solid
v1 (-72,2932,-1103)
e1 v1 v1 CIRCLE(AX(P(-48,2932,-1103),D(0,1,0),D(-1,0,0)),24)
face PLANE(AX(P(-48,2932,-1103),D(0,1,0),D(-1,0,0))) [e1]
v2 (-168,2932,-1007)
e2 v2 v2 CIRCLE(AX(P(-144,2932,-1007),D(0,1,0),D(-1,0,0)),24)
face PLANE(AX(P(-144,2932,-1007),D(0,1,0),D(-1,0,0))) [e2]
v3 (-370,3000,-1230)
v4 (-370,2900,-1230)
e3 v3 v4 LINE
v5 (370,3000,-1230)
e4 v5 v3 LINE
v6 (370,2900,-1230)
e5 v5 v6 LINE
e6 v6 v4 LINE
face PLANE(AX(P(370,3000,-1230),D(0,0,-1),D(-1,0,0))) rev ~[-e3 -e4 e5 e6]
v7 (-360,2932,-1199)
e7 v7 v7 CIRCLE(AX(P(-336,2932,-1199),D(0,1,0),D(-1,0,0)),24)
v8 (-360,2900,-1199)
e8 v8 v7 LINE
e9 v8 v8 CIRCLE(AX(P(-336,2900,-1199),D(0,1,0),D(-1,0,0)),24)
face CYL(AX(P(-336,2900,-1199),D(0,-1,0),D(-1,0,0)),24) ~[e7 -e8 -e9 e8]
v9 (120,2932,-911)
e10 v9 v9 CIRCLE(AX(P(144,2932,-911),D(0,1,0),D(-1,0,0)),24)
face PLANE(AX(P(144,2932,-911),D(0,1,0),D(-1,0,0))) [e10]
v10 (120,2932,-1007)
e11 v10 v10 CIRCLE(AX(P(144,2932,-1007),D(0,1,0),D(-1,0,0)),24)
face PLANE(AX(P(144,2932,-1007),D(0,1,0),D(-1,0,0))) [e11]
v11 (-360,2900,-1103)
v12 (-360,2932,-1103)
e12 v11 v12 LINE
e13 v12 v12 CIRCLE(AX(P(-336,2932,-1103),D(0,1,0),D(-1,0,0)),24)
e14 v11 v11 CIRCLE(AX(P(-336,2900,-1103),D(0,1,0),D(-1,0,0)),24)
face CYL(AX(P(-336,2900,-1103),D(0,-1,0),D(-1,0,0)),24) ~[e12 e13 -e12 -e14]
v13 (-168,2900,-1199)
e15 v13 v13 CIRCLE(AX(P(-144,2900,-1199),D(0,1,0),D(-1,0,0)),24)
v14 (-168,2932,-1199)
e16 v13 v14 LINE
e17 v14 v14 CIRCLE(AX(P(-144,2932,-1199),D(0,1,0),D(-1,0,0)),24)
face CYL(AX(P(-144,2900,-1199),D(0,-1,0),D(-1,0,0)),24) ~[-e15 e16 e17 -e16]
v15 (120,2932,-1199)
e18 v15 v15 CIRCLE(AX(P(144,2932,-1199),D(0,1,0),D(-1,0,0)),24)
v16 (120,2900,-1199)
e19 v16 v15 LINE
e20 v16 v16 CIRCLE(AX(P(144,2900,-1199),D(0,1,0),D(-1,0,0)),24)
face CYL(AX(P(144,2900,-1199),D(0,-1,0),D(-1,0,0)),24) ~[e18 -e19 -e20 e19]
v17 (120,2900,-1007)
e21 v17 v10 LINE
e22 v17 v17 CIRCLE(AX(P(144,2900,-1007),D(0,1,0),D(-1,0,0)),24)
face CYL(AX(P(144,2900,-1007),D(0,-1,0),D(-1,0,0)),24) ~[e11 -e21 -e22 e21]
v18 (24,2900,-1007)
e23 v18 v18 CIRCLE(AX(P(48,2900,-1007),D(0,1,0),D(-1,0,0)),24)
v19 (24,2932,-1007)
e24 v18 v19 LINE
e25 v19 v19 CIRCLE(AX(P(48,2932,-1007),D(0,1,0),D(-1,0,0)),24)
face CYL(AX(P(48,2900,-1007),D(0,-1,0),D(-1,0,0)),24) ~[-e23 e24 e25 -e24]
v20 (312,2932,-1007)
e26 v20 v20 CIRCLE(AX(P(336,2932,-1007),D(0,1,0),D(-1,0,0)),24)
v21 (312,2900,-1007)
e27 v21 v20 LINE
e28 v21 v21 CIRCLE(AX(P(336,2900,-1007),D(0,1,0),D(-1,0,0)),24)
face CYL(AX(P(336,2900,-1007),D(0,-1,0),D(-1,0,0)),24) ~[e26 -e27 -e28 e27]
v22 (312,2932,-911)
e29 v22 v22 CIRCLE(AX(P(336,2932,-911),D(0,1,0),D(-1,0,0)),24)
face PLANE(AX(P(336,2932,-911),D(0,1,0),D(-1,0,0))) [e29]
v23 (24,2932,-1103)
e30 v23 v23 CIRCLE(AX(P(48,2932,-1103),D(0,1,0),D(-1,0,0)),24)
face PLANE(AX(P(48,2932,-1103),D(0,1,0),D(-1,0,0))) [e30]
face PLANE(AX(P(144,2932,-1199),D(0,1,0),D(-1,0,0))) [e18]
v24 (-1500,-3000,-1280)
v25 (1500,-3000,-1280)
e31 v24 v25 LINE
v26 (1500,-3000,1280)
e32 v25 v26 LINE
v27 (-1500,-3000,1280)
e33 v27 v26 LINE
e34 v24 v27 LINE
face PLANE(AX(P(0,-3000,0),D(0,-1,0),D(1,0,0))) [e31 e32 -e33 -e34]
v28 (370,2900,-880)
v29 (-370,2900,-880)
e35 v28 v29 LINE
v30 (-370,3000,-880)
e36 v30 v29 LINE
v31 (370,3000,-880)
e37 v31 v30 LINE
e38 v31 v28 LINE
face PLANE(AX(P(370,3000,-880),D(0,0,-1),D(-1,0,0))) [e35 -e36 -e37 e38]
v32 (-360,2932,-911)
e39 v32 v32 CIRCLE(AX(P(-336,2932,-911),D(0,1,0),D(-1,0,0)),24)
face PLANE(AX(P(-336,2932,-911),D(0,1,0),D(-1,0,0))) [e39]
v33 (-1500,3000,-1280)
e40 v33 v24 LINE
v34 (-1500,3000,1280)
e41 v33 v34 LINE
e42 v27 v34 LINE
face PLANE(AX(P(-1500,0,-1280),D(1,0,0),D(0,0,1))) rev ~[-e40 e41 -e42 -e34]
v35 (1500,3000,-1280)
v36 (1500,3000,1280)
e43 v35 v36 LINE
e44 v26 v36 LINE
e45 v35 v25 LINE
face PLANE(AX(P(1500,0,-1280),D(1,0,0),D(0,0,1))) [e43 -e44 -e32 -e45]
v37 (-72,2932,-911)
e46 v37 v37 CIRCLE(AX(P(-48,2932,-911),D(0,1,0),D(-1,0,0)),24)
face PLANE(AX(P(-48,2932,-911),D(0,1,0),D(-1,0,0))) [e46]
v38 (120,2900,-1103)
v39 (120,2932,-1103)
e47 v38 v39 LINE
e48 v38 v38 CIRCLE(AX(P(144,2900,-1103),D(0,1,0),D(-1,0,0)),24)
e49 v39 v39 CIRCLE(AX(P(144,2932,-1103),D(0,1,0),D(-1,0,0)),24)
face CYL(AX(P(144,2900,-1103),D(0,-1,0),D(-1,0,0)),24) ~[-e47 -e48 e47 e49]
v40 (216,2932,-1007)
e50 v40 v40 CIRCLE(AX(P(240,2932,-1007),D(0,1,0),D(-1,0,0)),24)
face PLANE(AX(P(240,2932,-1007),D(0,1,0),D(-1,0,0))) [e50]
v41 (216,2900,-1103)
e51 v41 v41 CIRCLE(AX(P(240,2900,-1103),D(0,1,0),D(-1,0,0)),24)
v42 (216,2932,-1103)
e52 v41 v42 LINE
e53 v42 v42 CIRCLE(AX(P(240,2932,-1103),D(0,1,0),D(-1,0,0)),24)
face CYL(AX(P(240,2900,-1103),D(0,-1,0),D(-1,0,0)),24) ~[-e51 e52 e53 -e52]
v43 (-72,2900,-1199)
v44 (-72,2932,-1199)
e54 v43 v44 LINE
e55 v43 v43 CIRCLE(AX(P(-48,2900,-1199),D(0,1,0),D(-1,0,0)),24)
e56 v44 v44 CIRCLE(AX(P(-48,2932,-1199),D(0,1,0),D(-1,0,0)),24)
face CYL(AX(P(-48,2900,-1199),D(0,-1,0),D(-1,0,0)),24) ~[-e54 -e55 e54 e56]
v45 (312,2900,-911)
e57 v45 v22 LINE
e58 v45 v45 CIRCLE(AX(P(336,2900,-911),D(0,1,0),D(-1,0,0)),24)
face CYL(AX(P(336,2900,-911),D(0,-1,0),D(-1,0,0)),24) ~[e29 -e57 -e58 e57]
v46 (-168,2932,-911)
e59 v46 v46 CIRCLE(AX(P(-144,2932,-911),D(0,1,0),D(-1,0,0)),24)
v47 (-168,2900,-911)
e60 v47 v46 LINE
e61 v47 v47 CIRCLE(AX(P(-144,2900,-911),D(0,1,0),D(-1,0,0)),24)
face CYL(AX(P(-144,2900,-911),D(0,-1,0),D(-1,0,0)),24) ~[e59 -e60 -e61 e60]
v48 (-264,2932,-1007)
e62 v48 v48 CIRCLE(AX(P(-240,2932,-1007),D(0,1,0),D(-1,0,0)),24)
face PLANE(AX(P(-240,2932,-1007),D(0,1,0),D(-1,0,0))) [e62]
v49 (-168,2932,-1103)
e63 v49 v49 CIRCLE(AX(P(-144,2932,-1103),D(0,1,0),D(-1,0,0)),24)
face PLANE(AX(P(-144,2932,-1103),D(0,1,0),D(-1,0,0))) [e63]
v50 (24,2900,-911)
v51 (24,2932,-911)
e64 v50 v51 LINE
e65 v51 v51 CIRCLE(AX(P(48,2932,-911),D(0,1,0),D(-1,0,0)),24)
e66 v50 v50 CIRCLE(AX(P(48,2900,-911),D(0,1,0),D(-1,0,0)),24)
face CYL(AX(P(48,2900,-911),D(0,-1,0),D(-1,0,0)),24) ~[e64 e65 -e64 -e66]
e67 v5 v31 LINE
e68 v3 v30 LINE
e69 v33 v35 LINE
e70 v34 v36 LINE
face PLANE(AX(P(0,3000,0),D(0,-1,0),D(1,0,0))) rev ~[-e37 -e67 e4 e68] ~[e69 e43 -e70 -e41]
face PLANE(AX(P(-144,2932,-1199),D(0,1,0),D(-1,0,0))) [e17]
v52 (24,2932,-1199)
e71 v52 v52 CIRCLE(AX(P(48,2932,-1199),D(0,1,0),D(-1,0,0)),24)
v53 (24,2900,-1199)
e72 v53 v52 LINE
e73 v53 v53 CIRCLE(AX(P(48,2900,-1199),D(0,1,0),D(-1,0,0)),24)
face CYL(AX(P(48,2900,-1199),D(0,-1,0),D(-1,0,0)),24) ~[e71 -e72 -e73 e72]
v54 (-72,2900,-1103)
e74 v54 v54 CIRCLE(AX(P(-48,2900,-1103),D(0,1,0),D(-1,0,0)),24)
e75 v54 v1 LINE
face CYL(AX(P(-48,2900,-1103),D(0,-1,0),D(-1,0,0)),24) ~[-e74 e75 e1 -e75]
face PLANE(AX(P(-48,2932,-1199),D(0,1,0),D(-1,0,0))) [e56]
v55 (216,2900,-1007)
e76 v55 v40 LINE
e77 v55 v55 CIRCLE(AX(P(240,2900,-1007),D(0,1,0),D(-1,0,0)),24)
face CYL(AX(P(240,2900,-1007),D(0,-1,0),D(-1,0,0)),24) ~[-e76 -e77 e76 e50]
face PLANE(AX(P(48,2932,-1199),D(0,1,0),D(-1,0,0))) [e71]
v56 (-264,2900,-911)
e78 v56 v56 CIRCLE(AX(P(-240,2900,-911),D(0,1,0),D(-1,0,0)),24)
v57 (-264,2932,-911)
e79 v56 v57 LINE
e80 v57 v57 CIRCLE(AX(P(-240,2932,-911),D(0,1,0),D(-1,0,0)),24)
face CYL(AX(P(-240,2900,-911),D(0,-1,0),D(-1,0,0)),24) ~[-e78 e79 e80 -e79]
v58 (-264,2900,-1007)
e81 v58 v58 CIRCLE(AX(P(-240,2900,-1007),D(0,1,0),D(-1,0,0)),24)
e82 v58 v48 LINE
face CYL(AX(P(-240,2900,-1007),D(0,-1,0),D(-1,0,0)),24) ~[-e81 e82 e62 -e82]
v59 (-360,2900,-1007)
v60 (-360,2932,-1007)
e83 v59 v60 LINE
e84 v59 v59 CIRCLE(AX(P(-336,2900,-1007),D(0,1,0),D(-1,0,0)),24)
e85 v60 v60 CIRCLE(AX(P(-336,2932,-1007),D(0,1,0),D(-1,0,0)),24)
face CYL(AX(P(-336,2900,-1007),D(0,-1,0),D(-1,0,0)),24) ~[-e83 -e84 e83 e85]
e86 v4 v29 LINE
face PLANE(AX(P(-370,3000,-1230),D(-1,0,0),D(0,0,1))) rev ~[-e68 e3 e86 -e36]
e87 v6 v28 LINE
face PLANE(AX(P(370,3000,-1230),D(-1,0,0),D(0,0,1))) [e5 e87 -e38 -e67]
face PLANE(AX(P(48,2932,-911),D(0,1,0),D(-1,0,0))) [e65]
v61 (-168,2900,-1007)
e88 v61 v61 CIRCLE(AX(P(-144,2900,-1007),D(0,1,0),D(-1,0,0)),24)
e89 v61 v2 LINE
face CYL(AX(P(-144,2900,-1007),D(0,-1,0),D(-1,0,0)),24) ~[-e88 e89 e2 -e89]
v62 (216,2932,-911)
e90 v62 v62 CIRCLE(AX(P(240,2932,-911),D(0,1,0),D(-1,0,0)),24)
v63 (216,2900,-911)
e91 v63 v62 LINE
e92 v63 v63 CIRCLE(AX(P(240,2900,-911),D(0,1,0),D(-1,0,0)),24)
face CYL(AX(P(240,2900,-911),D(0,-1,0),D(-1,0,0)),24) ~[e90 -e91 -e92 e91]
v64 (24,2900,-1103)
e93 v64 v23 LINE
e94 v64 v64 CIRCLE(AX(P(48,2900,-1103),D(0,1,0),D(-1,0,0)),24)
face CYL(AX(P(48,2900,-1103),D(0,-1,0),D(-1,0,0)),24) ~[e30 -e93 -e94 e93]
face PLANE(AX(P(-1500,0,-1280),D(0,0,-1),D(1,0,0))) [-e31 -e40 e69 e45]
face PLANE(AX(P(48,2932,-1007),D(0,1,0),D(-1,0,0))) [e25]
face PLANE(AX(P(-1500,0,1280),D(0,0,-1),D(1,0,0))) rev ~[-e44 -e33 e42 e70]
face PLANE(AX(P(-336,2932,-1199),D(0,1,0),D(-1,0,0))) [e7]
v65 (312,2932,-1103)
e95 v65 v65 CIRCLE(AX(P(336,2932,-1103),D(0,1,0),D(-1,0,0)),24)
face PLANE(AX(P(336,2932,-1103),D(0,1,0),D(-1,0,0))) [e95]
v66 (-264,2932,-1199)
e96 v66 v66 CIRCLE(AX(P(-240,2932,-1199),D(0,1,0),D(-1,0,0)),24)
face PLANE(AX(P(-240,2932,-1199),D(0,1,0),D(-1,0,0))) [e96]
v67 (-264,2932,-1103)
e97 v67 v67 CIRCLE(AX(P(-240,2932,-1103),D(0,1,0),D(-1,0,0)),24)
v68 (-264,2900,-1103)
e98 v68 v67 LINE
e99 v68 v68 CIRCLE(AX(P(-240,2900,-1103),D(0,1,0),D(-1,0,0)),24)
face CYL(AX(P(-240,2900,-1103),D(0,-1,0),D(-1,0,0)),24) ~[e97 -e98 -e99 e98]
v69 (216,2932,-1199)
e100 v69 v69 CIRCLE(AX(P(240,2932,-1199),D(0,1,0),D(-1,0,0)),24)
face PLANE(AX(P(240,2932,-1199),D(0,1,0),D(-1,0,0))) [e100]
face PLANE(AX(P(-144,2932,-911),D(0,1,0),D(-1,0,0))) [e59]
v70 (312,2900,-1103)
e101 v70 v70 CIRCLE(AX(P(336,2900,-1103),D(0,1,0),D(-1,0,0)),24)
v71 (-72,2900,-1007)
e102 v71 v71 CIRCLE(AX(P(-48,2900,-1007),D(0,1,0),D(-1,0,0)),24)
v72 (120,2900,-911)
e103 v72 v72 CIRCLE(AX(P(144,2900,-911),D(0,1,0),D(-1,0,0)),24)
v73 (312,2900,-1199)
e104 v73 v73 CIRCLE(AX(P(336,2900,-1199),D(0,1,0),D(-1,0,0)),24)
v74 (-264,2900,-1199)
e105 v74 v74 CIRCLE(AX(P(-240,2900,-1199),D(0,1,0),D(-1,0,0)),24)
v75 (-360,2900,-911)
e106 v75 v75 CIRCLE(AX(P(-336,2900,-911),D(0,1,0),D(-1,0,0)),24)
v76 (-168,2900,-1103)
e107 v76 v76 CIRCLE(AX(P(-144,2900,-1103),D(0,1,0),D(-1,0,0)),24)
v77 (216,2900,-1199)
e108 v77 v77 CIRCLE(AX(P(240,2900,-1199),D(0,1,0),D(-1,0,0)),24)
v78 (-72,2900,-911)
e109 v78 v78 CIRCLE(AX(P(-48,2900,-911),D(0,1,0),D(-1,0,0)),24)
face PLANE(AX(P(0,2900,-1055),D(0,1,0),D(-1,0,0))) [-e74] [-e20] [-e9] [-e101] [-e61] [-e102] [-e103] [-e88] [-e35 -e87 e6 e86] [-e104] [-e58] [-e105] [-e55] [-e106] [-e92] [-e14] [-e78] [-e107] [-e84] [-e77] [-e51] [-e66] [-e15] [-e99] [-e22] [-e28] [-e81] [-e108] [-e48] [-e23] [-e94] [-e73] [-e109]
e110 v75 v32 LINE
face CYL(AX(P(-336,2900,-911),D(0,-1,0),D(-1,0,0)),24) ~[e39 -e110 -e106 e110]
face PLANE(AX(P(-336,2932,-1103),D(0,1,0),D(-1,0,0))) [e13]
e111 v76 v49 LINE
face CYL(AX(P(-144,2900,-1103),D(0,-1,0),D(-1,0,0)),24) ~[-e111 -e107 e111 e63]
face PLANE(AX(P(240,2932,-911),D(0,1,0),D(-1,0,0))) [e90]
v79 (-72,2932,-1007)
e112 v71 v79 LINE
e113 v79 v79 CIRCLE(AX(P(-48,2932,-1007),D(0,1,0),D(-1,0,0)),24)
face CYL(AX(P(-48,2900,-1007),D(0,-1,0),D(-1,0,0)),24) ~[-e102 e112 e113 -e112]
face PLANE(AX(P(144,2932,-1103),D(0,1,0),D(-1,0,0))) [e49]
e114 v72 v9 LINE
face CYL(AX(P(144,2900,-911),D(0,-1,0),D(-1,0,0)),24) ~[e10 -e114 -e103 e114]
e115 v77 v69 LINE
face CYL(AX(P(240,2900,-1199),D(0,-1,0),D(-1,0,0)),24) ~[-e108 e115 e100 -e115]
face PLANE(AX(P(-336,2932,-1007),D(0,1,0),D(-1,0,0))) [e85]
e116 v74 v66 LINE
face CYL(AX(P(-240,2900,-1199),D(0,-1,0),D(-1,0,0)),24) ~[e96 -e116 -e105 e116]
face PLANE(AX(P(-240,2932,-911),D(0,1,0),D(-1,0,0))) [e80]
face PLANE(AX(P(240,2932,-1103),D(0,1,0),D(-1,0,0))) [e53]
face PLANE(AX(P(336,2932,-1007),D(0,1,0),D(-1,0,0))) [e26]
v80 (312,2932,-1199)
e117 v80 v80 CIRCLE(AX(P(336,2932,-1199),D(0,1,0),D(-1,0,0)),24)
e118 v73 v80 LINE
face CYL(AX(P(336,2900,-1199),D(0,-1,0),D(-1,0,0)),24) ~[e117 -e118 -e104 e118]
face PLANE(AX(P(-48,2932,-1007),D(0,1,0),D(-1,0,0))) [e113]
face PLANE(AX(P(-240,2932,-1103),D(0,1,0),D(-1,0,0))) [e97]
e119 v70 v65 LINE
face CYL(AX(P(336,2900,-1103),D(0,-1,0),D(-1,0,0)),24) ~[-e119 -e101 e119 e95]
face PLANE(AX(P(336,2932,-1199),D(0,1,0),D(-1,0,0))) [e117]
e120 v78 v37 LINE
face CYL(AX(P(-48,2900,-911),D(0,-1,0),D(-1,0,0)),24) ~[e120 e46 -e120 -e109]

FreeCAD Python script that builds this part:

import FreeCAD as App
import Part
import Sketcher

V = App.Vector

doc = App.newDocument("Part")
body = doc.addObject("PartDesign::Body", "Body")

sketch1 = body.newObject("Sketcher::SketchObject", "Sketch")
sketch1.AttachmentSupport = (doc.getObject("XZ_Plane"), [""])
sketch1.MapMode = "FlatFace"
sketch1.addGeometry([
    Part.LineSegment(V(-1500, 1280, 0), V(-1500, -1280, 0)),
    Part.LineSegment(V(-1500, -1280, 0), V(1500, -1280, 0)),
    Part.LineSegment(V(1500, -1280, 0), V(1500, 1280, 0)),
    Part.LineSegment(V(1500, 1280, 0), V(-1500, 1280, 0)),
], False)
sketch1.addConstraint([
    Sketcher.Constraint("Coincident", 0, 2, 1, 1),
    Sketcher.Constraint("Coincident", 1, 2, 2, 1),
    Sketcher.Constraint("Coincident", 2, 2, 3, 1),
    Sketcher.Constraint("Coincident", 3, 2, 0, 1),
    Sketcher.Constraint("Vertical", 0),
    Sketcher.Constraint("Horizontal", 1),
    Sketcher.Constraint("Vertical", 2),
    Sketcher.Constraint("Horizontal", 3),
    Sketcher.Constraint("Symmetric", 0, 2, 2, 2, -1, 1),
    Sketcher.Constraint("DistanceX", 1, 1, 1, 2, 3000.0),
    Sketcher.Constraint("DistanceY", 0, 2, 0, 1, 2560.0),
])
pad1 = body.newObject("PartDesign::Pad", "Pad")
pad1.Profile = sketch1
pad1.Length = 6000
pad1.Midplane = True

sketch2 = body.newObject("Sketcher::SketchObject", "Sketch001")
sketch2.AttachmentSupport = (doc.getObject("XZ_Plane"), [""])
sketch2.MapMode = "FlatFace"
sketch2.AttachmentOffset = App.Placement(V(0, 0, -3000), App.Rotation())
sketch2.addGeometry([
    Part.LineSegment(V(370, -880, 0), V(370, -1230, 0)),
    Part.LineSegment(V(370, -1230, 0), V(-370, -1230, 0)),
    Part.LineSegment(V(-370, -1230, 0), V(-370, -880, 0)),
    Part.LineSegment(V(-370, -880, 0), V(370, -880, 0)),
], False)
sketch2.addConstraint([
    Sketcher.Constraint("Coincident", 0, 2, 1, 1),
    Sketcher.Constraint("Coincident", 1, 2, 2, 1),
    Sketcher.Constraint("Coincident", 2, 2, 3, 1),
    Sketcher.Constraint("Coincident", 3, 2, 0, 1),
    Sketcher.Constraint("Vertical", 0),
    Sketcher.Constraint("Horizontal", 1),
    Sketcher.Constraint("Vertical", 2),
    Sketcher.Constraint("Horizontal", 3),
    Sketcher.Constraint("DistanceX", 1, 2, 1, 1, 740.0),
    Sketcher.Constraint("DistanceY", 0, 2, 0, 1, 350.0),
    Sketcher.Constraint("DistanceX", -1, 1, 0, 2, 370.0),
    Sketcher.Constraint("DistanceY", 0, 2, -1, 1, 1230.0),
])
pocket1 = body.newObject("PartDesign::Pocket", "Pocket")
pocket1.Profile = sketch2
pocket1.Length = 100
pocket1.Reversed = True

sketch3 = body.newObject("Sketcher::SketchObject", "Sketch002")
sketch3.AttachmentSupport = (doc.getObject("XZ_Plane"), [""])
sketch3.MapMode = "FlatFace"
sketch3.AttachmentOffset = App.Placement(V(0, 0, -2900), App.Rotation())
sketch3.addGeometry([
    Part.Circle(V(336, -911, 0), V(0, 0, 1), 24),
    Part.Circle(V(336, -1007, 0), V(0, 0, 1), 24),
    Part.Circle(V(336, -1103, 0), V(0, 0, 1), 24),
    Part.Circle(V(336, -1199, 0), V(0, 0, 1), 24),
    Part.Circle(V(240, -911, 0), V(0, 0, 1), 24),
    Part.Circle(V(240, -1007, 0), V(0, 0, 1), 24),
    Part.Circle(V(240, -1103, 0), V(0, 0, 1), 24),
    Part.Circle(V(240, -1199, 0), V(0, 0, 1), 24),
    Part.Circle(V(144, -911, 0), V(0, 0, 1), 24),
    Part.Circle(V(144, -1007, 0), V(0, 0, 1), 24),
    Part.Circle(V(144, -1103, 0), V(0, 0, 1), 24),
    Part.Circle(V(144, -1199, 0), V(0, 0, 1), 24),
    Part.Circle(V(48, -911, 0), V(0, 0, 1), 24),
    Part.Circle(V(48, -1007, 0), V(0, 0, 1), 24),
    Part.Circle(V(48, -1103, 0), V(0, 0, 1), 24),
    Part.Circle(V(48, -1199, 0), V(0, 0, 1), 24),
    Part.Circle(V(-48, -911, 0), V(0, 0, 1), 24),
    Part.Circle(V(-48, -1007, 0), V(0, 0, 1), 24),
    Part.Circle(V(-48, -1103, 0), V(0, 0, 1), 24),
    Part.Circle(V(-48, -1199, 0), V(0, 0, 1), 24),
    Part.Circle(V(-144, -911, 0), V(0, 0, 1), 24),
    Part.Circle(V(-144, -1007, 0), V(0, 0, 1), 24),
    Part.Circle(V(-144, -1103, 0), V(0, 0, 1), 24),
    Part.Circle(V(-144, -1199, 0), V(0, 0, 1), 24),
    Part.Circle(V(-240, -911, 0), V(0, 0, 1), 24),
    Part.Circle(V(-240, -1007, 0), V(0, 0, 1), 24),
    Part.Circle(V(-240, -1103, 0), V(0, 0, 1), 24),
    Part.Circle(V(-240, -1199, 0), V(0, 0, 1), 24),
    Part.Circle(V(-336, -911, 0), V(0, 0, 1), 24),
    Part.Circle(V(-336, -1007, 0), V(0, 0, 1), 24),
    Part.Circle(V(-336, -1103, 0), V(0, 0, 1), 24),
    Part.Circle(V(-336, -1199, 0), V(0, 0, 1), 24),
], False)
sketch3.addConstraint([
    Sketcher.Constraint("Equal", 0, 1),
    Sketcher.Constraint("Equal", 1, 2),
    Sketcher.Constraint("Equal", 2, 3),
    Sketcher.Constraint("Equal", 3, 4),
    Sketcher.Constraint("Equal", 4, 5),
    Sketcher.Constraint("Equal", 5, 6),
    Sketcher.Constraint("Equal", 6, 7),
    Sketcher.Constraint("Equal", 7, 8),
    Sketcher.Constraint("Equal", 8, 9),
    Sketcher.Constraint("Equal", 9, 10),
    Sketcher.Constraint("Equal", 10, 11),
    Sketcher.Constraint("Equal", 11, 12),
    Sketcher.Constraint("Equal", 12, 13),
    Sketcher.Constraint("Equal", 13, 14),
    Sketcher.Constraint("Equal", 14, 15),
    Sketcher.Constraint("Equal", 15, 16),
    Sketcher.Constraint("Equal", 16, 17),
    Sketcher.Constraint("Equal", 17, 18),
    Sketcher.Constraint("Equal", 18, 19),
    Sketcher.Constraint("Equal", 19, 20),
    Sketcher.Constraint("Equal", 20, 21),
    Sketcher.Constraint("Equal", 21, 22),
    Sketcher.Constraint("Equal", 22, 23),
    Sketcher.Constraint("Equal", 23, 24),
    Sketcher.Constraint("Equal", 24, 25),
    Sketcher.Constraint("Equal", 25, 26),
    Sketcher.Constraint("Equal", 26, 27),
    Sketcher.Constraint("Equal", 27, 28),
    Sketcher.Constraint("Equal", 28, 29),
    Sketcher.Constraint("Equal", 29, 30),
    Sketcher.Constraint("Equal", 30, 31),
    Sketcher.Constraint("Symmetric", 12, 3, 16, 3, -2),
    Sketcher.Constraint("Symmetric", 13, 3, 17, 3, -2),
    Sketcher.Constraint("Symmetric", 14, 3, 18, 3, -2),
    Sketcher.Constraint("Symmetric", 15, 3, 19, 3, -2),
    Sketcher.Constraint("Symmetric", 8, 3, 20, 3, -2),
    Sketcher.Constraint("Symmetric", 9, 3, 21, 3, -2),
    Sketcher.Constraint("Symmetric", 10, 3, 22, 3, -2),
    Sketcher.Constraint("Symmetric", 11, 3, 23, 3, -2),
    Sketcher.Constraint("Symmetric", 4, 3, 24, 3, -2),
    Sketcher.Constraint("Symmetric", 5, 3, 25, 3, -2),
    Sketcher.Constraint("Symmetric", 6, 3, 26, 3, -2),
    Sketcher.Constraint("Symmetric", 7, 3, 27, 3, -2),
    Sketcher.Constraint("Symmetric", 0, 3, 28, 3, -2),
    Sketcher.Constraint("Symmetric", 1, 3, 29, 3, -2),
    Sketcher.Constraint("Symmetric", 2, 3, 30, 3, -2),
    Sketcher.Constraint("Symmetric", 3, 3, 31, 3, -2),
    Sketcher.Constraint("Horizontal", 0, 3, 4, 3),
    Sketcher.Constraint("Horizontal", 1, 3, 5, 3),
    Sketcher.Constraint("Horizontal", 2, 3, 6, 3),
    Sketcher.Constraint("Horizontal", 3, 3, 7, 3),
    Sketcher.Constraint("Horizontal", 4, 3, 8, 3),
    Sketcher.Constraint("Horizontal", 5, 3, 9, 3),
    Sketcher.Constraint("Horizontal", 6, 3, 10, 3),
    Sketcher.Constraint("Horizontal", 7, 3, 11, 3),
    Sketcher.Constraint("Horizontal", 8, 3, 12, 3),
    Sketcher.Constraint("Horizontal", 9, 3, 13, 3),
    Sketcher.Constraint("Horizontal", 10, 3, 14, 3),
    Sketcher.Constraint("Horizontal", 11, 3, 15, 3),
    Sketcher.Constraint("Vertical", 0, 3, 1, 3),
    Sketcher.Constraint("Vertical", 1, 3, 2, 3),
    Sketcher.Constraint("Vertical", 2, 3, 3, 3),
    Sketcher.Constraint("Vertical", 4, 3, 5, 3),
    Sketcher.Constraint("Vertical", 5, 3, 6, 3),
    Sketcher.Constraint("Vertical", 6, 3, 7, 3),
    Sketcher.Constraint("Vertical", 8, 3, 9, 3),
    Sketcher.Constraint("Vertical", 9, 3, 10, 3),
    Sketcher.Constraint("Vertical", 10, 3, 11, 3),
    Sketcher.Constraint("Vertical", 12, 3, 13, 3),
    Sketcher.Constraint("Vertical", 13, 3, 14, 3),
    Sketcher.Constraint("Vertical", 14, 3, 15, 3),
    Sketcher.Constraint("Diameter", 0, 48.0),
    Sketcher.Constraint("DistanceX", -1, 1, 0, 3, 336.0),
    Sketcher.Constraint("DistanceY", 0, 3, -1, 1, 911.0),
    Sketcher.Constraint("DistanceY", 1, 3, -1, 1, 1007.0),
    Sketcher.Constraint("DistanceY", 2, 3, -1, 1, 1103.0),
    Sketcher.Constraint("DistanceY", 3, 3, -1, 1, 1199.0),
    Sketcher.Constraint("DistanceX", -1, 1, 4, 3, 240.0),
    Sketcher.Constraint("DistanceX", -1, 1, 8, 3, 144.0),
    Sketcher.Constraint("DistanceX", -1, 1, 12, 3, 48.0),
])
pad2 = body.newObject("PartDesign::Pad", "Pad001")
pad2.Profile = sketch3
pad2.Length = 32
pad2.Reversed = True

doc.recompute()
